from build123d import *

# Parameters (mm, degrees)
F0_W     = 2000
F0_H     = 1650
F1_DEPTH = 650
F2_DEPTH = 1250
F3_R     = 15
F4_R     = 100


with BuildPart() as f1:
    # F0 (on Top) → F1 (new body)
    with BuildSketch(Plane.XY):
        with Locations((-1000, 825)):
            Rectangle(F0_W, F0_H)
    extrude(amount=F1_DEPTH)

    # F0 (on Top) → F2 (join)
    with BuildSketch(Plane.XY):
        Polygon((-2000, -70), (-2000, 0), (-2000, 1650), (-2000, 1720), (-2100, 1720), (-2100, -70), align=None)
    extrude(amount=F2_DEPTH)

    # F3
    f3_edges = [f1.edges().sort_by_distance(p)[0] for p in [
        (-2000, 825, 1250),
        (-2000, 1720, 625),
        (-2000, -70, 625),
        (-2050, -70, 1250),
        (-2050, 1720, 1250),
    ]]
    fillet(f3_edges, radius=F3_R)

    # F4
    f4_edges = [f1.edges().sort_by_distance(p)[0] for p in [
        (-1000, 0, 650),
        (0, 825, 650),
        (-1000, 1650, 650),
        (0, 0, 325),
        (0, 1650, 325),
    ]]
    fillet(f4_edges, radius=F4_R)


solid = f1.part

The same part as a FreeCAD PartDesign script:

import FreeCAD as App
import Part
import Sketcher
from FreeCAD import Vector


def edges_at(feature, points):
    """Names of the edges that pass closest to the given points."""
    edges = feature.Shape.Edges
    near = lambda p: min(range(len(edges)), key=lambda i: edges[i].distToShape(Part.Vertex(*p))[0])
    return sorted({f"Edge{near(p) + 1}" for p in points})

doc = App.newDocument("Part")
body = doc.addObject("PartDesign::Body", "Body")

# Sketch on XY plane
sketch1 = body.newObject("Sketcher::SketchObject", "Sketch")
sketch1.AttachmentSupport = (doc.getObject("XY_Plane"), [""])
sketch1.MapMode = "FlatFace"
sketch1.addGeometry([
    Part.LineSegment(Vector(-2000, 1650, 0), Vector(-2000, 0, 0)),
    Part.LineSegment(Vector(-2000, 0, 0), Vector(0, 0, 0)),
    Part.LineSegment(Vector(0, 0, 0), Vector(0, 1650, 0)),
    Part.LineSegment(Vector(0, 1650, 0), Vector(-2000, 1650, 0)),
], False)
sketch1.addConstraint([
    Sketcher.Constraint("Coincident", 0, 2, 1, 1),
    Sketcher.Constraint("Coincident", 1, 2, 2, 1),
    Sketcher.Constraint("Coincident", 2, 2, 3, 1),
    Sketcher.Constraint("Coincident", 3, 2, 0, 1),
    Sketcher.Constraint("Vertical", 0),
    Sketcher.Constraint("Horizontal", 1),
    Sketcher.Constraint("Vertical", 2),
    Sketcher.Constraint("Horizontal", 3),
    Sketcher.Constraint("Coincident", 1, 2, -1, 1),
    Sketcher.Constraint("DistanceX", 1, 1, 1, 2, 2000.0),
    Sketcher.Constraint("DistanceY", 0, 2, 0, 1, 1650.0),
])
pad1 = body.newObject("PartDesign::Pad", "Pad")
pad1.Profile = sketch1
pad1.Length = 650

# Sketch on XY plane
sketch2 = body.newObject("Sketcher::SketchObject", "Sketch001")
sketch2.AttachmentSupport = (doc.getObject("XY_Plane"), [""])
sketch2.MapMode = "FlatFace"
sketch2.addGeometry([
    Part.LineSegment(Vector(-2000, -70, 0), Vector(-2000, 1720, 0)),
    Part.LineSegment(Vector(-2000, 1720, 0), Vector(-2100, 1720, 0)),
    Part.LineSegment(Vector(-2100, 1720, 0), Vector(-2100, -70, 0)),
    Part.LineSegment(Vector(-2100, -70, 0), Vector(-2000, -70, 0)),
], False)
sketch2.addConstraint([
    Sketcher.Constraint("Coincident", 0, 2, 1, 1),
    Sketcher.Constraint("Coincident", 1, 2, 2, 1),
    Sketcher.Constraint("Coincident", 2, 2, 3, 1),
    Sketcher.Constraint("Coincident", 3, 2, 0, 1),
    Sketcher.Constraint("Vertical", 0),
    Sketcher.Constraint("Horizontal", 1),
    Sketcher.Constraint("Vertical", 2),
    Sketcher.Constraint("Horizontal", 3),
    Sketcher.Constraint("DistanceX", 1, 2, 1, 1, 100.0),
    Sketcher.Constraint("DistanceY", 0, 1, 0, 2, 1790.0),
    Sketcher.Constraint("DistanceX", 0, 2, -1, 1, 2000.0),
    Sketcher.Constraint("DistanceY", -1, 1, 0, 2, 1720.0),
])
pad2 = body.newObject("PartDesign::Pad", "Pad001")
pad2.Profile = sketch2
pad2.Length = 1250
doc.recompute()

fillet = body.newObject("PartDesign::Fillet", "Fillet")
fillet.Base = (pad2, edges_at(pad2, [
    (-2000, 825, 1250),
    (-2000, 1720, 625),
    (-2000, -70, 625),
    (-2050, -70, 1250),
    (-2050, 1720, 1250),
]))
fillet.Radius = 15
doc.recompute()

fillet2 = body.newObject("PartDesign::Fillet", "Fillet001")
fillet2.Base = (fillet, edges_at(fillet, [
    (-1000, 0, 650),
    (0, 825, 650),
    (-1000, 1650, 650),
    (0, 0, 325),
    (0, 1650, 325),
]))
fillet2.Radius = 100

doc.recompute()
